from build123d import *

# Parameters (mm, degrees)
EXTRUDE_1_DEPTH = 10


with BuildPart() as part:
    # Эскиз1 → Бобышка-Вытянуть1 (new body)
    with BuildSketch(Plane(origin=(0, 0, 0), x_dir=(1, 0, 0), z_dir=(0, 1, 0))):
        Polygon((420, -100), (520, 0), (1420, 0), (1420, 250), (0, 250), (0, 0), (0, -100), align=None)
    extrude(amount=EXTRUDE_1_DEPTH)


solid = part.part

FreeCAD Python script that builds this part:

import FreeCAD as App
import Part
import Sketcher
from FreeCAD import Vector
Q = App.Units.Quantity


def add_polygon(sketch, points):
    """Adds a closed chain of lines whose ends are joined by coincident constraints."""
    first, n = sketch.GeometryCount, len(points)
    for a, b in zip(points, points[1:] + points[:1]):
        sketch.addGeometry(Part.LineSegment(App.Vector(*a, 0), App.Vector(*b, 0)), False)
    for i in range(n):
        sketch.addConstraint(Sketcher.Constraint("Coincident", first + i, 2, first + (i + 1) % n, 1))

doc = App.newDocument("Part")
body = doc.addObject("PartDesign::Body", "Body")

# Sketch on XZ plane
sketch1 = body.newObject("Sketcher::SketchObject", "Sketch")
sketch1.AttachmentSupport = (doc.getObject("XZ_Plane"), [""])
sketch1.MapMode = "FlatFace"
add_polygon(sketch1, [(420, 100), (520, 0), (1420, 0), (1420, -250), (0, -250), (0, 100)])  # lines 0-5
sketch1.addConstraint([
    Sketcher.Constraint("Horizontal", 1),
    Sketcher.Constraint("Vertical", 2),
    Sketcher.Constraint("Horizontal", 3),
    Sketcher.Constraint("Vertical", 4),
    Sketcher.Constraint("Horizontal", 5),
    Sketcher.Constraint("PointOnObject", 0, 2, -1),
    Sketcher.Constraint("PointOnObject", 3, 2, -2),
    Sketcher.Constraint("DistanceX", 1, 1, 1, 2, Q("900 mm")),
    Sketcher.Constraint("DistanceX", 3, 2, 3, 1, Q("1420 mm")),
    Sketcher.Constraint("DistanceX", 5, 1, 5, 2, Q("420 mm")),
    Sketcher.Constraint("DistanceY", 2, 2, 2, 1, Q("250 mm")),
    Sketcher.Constraint("DistanceY", 4, 1, 4, 2, Q("350 mm")),
])
pad1 = body.newObject("PartDesign::Pad", "Pad")
pad1.Profile = sketch1
pad1.Length = 10
pad1.Reversed = True

doc.recompute()
